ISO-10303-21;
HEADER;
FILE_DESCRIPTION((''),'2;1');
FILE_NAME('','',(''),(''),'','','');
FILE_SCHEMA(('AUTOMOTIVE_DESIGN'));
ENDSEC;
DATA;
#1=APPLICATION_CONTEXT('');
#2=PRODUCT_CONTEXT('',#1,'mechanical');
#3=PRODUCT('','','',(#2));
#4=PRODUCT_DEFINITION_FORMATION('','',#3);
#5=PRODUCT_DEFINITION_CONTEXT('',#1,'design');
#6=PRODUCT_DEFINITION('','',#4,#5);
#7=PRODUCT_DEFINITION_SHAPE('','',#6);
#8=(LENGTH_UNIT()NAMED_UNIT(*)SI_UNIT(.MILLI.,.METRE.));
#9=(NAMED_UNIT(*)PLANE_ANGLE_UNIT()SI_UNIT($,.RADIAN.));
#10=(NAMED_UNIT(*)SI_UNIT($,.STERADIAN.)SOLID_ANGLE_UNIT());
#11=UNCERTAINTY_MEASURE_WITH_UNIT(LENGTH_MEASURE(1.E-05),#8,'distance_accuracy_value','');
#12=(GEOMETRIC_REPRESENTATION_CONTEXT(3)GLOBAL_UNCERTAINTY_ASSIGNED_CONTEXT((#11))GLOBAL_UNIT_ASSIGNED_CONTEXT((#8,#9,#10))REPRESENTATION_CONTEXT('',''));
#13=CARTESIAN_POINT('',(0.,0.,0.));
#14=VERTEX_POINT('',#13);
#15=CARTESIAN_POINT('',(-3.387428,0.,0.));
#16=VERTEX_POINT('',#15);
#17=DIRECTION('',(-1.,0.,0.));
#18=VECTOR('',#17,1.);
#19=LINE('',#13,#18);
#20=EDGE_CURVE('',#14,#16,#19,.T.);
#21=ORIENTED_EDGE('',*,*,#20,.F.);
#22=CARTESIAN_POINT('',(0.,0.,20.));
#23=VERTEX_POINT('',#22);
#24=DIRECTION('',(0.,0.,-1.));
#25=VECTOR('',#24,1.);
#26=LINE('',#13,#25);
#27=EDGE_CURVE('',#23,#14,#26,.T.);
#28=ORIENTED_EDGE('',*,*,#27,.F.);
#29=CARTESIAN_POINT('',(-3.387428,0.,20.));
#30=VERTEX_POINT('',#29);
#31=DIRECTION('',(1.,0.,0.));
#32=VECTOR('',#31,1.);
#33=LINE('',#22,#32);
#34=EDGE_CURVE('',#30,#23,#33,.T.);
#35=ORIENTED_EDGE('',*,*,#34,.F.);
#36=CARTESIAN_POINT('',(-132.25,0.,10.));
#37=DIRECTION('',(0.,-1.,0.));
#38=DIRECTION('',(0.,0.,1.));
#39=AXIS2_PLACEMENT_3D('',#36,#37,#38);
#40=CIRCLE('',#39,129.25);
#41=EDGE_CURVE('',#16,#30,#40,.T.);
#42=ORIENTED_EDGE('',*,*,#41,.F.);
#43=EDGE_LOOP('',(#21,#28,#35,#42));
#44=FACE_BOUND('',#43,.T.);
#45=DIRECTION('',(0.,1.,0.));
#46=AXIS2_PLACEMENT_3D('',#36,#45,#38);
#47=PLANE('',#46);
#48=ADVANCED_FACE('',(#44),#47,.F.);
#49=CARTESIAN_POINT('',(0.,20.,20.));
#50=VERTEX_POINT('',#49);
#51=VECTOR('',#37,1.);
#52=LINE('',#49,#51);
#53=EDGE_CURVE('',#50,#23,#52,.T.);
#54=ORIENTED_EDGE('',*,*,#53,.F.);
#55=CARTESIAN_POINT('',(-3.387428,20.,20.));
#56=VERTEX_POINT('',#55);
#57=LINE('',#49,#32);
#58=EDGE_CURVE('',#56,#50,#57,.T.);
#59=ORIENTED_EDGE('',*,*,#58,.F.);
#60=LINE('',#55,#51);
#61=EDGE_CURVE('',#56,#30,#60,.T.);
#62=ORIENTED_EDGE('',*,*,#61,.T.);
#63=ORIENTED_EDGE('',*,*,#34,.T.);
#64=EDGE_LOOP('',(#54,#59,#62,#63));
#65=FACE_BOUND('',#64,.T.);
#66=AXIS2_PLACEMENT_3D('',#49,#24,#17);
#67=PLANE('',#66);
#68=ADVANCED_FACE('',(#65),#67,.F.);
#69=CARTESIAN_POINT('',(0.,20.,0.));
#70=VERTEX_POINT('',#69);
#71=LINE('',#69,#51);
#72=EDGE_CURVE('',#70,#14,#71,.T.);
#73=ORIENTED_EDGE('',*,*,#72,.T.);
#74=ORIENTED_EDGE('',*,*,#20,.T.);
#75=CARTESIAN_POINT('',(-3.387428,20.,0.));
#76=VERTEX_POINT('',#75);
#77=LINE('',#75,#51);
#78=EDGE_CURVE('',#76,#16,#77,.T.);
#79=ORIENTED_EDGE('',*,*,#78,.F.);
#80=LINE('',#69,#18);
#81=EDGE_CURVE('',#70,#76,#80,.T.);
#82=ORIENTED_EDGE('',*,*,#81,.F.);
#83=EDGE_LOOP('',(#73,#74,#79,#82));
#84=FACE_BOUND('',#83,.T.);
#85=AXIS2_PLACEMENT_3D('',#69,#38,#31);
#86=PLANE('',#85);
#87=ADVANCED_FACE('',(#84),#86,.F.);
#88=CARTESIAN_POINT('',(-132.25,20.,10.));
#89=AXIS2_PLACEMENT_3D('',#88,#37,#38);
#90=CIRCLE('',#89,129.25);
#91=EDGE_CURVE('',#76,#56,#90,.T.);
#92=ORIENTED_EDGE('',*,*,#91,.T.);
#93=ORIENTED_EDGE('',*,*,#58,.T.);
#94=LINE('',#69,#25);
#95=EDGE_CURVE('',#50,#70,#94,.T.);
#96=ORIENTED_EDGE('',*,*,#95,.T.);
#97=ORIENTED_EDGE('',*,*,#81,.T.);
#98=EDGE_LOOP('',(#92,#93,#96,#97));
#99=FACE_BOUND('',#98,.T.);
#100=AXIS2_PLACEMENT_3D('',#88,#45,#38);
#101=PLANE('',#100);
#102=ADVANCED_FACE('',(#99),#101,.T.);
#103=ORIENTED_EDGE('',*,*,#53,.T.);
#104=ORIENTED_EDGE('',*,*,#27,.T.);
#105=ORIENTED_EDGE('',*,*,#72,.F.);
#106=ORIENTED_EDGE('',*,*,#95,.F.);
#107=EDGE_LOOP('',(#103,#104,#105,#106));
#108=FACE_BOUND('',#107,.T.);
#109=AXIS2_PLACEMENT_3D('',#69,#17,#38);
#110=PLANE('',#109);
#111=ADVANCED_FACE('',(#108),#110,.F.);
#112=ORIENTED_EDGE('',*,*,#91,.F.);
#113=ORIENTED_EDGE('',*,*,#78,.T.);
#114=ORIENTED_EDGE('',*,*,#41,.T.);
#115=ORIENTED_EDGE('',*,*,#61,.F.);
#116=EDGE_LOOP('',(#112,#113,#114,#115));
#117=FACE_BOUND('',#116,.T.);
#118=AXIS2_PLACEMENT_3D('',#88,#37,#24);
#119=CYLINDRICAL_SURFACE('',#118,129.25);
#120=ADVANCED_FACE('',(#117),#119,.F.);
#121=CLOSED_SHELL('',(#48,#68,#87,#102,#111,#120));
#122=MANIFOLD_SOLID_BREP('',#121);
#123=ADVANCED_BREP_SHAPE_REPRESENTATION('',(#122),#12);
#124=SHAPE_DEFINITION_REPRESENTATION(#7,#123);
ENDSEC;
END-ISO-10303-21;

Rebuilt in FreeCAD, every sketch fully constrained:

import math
import FreeCAD as App
import Part
import Sketcher

V = App.Vector
Q = App.Units.Quantity

doc = App.newDocument("Part")
params = doc.addObject("Spreadsheet::Sheet", "Params")
for row, (alias, value) in enumerate([
    ("sketch1_height", "20 mm"),
    ("sketch1_radius", "129.25 mm"),
    ("pad1_length", "20 mm"),
], start=1):
    params.set(f"A{row}", alias)
    params.set(f"B{row}", "=" + value)
    params.setAlias(f"B{row}", alias)

body = doc.addObject("PartDesign::Body", "Body")

# Sketch on XZ plane
sketch1 = doc.addObject("Sketcher::SketchObject", "Sketch")
body.addObject(sketch1)
sketch1.AttachmentSupport = (doc.XZ_Plane, [""])
sketch1.MapMode = "FlatFace"
sketch1.addGeometry(Part.LineSegment(V(0, 20, 0), V(0, 0, 0)), False)
sketch1.addGeometry(Part.LineSegment(V(0, 0, 0), V(-3.4, 0, 0)), False)
sketch1.addGeometry(Part.ArcOfCircle(Part.Circle(V(-132.3, 10, 0), V(0, 0, 1), 129.3), math.radians(-4.44), math.radians(4.44)), False)
sketch1.addGeometry(Part.LineSegment(V(-3.4, 20, 0), V(0, 20, 0)), False)
sketch1.addConstraint(Sketcher.Constraint("Coincident", 0, 2, 1, 1))
sketch1.addConstraint(Sketcher.Constraint("Coincident", 1, 2, 2, 1))
sketch1.addConstraint(Sketcher.Constraint("Coincident", 2, 2, 3, 1))
sketch1.addConstraint(Sketcher.Constraint("Coincident", 3, 2, 0, 1))
sketch1.addConstraint(Sketcher.Constraint("Vertical", 0))
sketch1.addConstraint(Sketcher.Constraint("Horizontal", 1))
sketch1.addConstraint(Sketcher.Constraint("Horizontal", 3))
sketch1.addConstraint(Sketcher.Constraint("Coincident", 0, 2, -1, 1))
sketch1.addConstraint(Sketcher.Constraint("Vertical", 1, 2, 2, 2))
sketch1.addConstraint(Sketcher.Constraint("DistanceY", 0, 2, 0, 1, Q("20 mm")))
sketch1.addConstraint(Sketcher.Constraint("Radius", 2, Q("129.25 mm")))
sketch1.addConstraint(Sketcher.Constraint("DistanceX", 2, 3, -1, 1, Q("132.25 mm")))
sketch1.setExpression("Constraints[9]", "Params.sketch1_height")
sketch1.setExpression("Constraints[10]", "Params.sketch1_radius")
pad1 = doc.addObject("PartDesign::Pad", "Pad")
body.addObject(pad1)
pad1.Profile = sketch1
pad1.setExpression("Length", "Params.pad1_length")
pad1.Reversed = True

doc.recompute()
